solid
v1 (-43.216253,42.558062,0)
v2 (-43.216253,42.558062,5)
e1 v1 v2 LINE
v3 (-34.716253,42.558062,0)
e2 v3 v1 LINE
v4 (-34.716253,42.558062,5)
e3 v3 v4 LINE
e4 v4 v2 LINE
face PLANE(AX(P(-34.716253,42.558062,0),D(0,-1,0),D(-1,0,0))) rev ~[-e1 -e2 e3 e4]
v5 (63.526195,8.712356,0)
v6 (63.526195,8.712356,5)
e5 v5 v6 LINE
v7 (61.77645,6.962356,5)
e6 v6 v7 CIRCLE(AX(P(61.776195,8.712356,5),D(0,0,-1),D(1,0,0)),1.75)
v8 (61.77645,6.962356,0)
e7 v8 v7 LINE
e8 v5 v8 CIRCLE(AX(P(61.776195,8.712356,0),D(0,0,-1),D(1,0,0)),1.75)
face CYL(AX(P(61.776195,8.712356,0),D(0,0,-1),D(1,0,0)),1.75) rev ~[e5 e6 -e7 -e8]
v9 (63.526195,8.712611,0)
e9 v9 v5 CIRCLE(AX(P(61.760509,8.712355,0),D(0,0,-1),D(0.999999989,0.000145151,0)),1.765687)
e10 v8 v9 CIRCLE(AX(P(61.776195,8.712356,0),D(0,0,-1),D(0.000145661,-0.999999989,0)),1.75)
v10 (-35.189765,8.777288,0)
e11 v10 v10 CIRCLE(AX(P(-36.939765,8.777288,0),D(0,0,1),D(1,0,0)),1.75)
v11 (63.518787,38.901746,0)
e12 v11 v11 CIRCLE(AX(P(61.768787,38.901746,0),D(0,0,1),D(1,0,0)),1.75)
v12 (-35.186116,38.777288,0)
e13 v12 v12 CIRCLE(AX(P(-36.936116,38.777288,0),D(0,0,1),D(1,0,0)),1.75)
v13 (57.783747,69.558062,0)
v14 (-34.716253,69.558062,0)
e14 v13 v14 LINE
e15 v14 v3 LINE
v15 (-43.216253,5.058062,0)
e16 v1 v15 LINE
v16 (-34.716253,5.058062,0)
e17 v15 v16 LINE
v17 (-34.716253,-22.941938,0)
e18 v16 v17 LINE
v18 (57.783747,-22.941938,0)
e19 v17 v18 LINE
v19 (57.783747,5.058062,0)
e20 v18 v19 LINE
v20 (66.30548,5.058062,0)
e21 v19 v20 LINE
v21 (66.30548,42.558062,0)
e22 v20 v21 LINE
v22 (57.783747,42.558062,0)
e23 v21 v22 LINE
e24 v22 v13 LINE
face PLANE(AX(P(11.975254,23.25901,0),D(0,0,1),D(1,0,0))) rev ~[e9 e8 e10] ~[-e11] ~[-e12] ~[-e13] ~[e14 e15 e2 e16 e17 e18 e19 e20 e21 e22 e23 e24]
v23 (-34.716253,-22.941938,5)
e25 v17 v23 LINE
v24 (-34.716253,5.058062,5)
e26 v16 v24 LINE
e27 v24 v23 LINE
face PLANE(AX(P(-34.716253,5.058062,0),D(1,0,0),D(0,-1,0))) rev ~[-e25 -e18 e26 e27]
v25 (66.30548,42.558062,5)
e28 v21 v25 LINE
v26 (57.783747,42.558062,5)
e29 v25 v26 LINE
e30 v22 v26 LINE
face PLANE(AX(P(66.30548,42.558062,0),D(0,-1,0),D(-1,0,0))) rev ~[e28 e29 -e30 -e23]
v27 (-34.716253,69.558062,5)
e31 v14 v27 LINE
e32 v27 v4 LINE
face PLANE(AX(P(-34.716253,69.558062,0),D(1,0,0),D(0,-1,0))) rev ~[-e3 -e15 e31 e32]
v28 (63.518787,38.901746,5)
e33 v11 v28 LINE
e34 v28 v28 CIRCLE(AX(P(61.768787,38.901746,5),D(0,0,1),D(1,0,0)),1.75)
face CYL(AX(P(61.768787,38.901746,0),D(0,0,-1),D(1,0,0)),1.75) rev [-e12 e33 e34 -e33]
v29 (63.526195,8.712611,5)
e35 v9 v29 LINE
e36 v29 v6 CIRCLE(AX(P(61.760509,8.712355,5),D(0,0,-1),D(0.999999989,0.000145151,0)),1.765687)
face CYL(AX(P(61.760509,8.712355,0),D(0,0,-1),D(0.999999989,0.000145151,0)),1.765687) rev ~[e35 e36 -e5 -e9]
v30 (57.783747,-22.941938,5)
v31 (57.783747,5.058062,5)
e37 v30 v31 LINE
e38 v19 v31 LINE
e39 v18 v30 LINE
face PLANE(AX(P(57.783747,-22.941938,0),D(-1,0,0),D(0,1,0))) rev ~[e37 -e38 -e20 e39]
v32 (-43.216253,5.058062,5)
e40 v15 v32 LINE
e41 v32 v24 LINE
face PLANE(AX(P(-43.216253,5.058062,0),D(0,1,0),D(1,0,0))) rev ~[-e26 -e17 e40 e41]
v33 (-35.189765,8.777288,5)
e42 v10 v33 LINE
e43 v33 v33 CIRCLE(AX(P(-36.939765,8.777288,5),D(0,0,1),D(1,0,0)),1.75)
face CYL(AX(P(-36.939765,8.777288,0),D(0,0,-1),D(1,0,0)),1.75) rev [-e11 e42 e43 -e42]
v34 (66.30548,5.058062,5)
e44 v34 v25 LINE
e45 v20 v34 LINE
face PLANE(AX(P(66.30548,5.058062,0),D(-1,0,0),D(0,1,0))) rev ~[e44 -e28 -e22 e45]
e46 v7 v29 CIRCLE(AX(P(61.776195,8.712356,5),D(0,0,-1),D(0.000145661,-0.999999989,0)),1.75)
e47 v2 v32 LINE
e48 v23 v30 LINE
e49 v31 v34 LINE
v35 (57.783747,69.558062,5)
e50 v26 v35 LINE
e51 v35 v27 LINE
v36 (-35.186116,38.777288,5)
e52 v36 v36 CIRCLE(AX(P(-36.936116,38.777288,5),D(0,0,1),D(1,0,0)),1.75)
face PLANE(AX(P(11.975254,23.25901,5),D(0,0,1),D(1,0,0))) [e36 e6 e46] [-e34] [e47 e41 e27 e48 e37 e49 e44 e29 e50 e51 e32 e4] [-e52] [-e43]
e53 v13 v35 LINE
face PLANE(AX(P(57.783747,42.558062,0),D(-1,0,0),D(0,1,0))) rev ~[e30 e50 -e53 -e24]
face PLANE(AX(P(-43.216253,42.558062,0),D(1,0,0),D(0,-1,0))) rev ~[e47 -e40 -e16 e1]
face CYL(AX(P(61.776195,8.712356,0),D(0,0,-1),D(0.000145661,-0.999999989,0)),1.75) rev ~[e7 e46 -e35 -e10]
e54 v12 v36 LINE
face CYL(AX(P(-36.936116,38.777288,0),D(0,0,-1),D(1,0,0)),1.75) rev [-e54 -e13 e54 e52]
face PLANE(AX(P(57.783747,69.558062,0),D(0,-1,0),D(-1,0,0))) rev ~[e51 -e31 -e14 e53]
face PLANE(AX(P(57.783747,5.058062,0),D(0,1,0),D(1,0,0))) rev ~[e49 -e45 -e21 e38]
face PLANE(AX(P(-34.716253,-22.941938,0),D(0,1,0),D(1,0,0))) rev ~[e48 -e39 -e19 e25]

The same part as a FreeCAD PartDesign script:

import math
import FreeCAD as App
import Part
import Sketcher

V = App.Vector
Q = App.Units.Quantity


def add_polygon(sketch, points):
    """Adds a closed chain of lines whose ends are joined by coincident constraints."""
    first, n = sketch.GeometryCount, len(points)
    for a, b in zip(points, points[1:] + points[:1]):
        sketch.addGeometry(Part.LineSegment(App.Vector(*a, 0), App.Vector(*b, 0)), False)
    for i in range(n):
        sketch.addConstraint(Sketcher.Constraint("Coincident", first + i, 2, first + (i + 1) % n, 1))

doc = App.newDocument("Part")
body = doc.addObject("PartDesign::Body", "Body")

# Sketch on XY plane
sketch1 = body.newObject("Sketcher::SketchObject", "Sketch")
sketch1.AttachmentSupport = (doc.getObject("XY_Plane"), [""])
sketch1.MapMode = "FlatFace"
add_polygon(sketch1, [(57.783747, 69.558062), (-34.716253, 69.558062), (-34.716253, 42.558062), (-43.216253, 42.558062), (-43.216253, 5.058062), (-34.716253, 5.058062), (-34.716253, -22.941938), (57.783747, -22.941938), (57.783747, 5.058062), (66.30548, 5.058062), (66.30548, 42.558062), (57.783747, 42.558062)])  # lines 0-11
sketch1.addGeometry(Part.ArcOfCircle(Part.Circle(V(61.776195, 8.712356, 0), V(0, 0, 1), 1.75), math.radians(0.008346), math.radians(270.008346)), False)  # 12
sketch1.addGeometry(Part.ArcOfCircle(Part.Circle(V(61.760509, 8.712355, 0), V(0, 0, 1), 1.765687), math.radians(0.000045), math.radians(0.008317)), False)  # 13
sketch1.addGeometry(Part.ArcOfCircle(Part.Circle(V(61.776195, 8.712356, 0), V(0, 0, 1), 1.75), math.radians(-89.991654), math.radians(0)), False)  # 14
sketch1.addGeometry(Part.Circle(V(-36.939765, 8.777288, 0), V(0, 0, 1), 1.75), False)  # 15
sketch1.addGeometry(Part.Circle(V(-36.936116, 38.777288, 0), V(0, 0, 1), 1.75), False)  # 16
sketch1.addGeometry(Part.Circle(V(61.768787, 38.901746, 0), V(0, 0, 1), 1.75), False)  # 17
sketch1.addConstraint([
    Sketcher.Constraint("Coincident", 12, 1, 13, 2),
    Sketcher.Constraint("Coincident", 13, 1, 14, 2),
    Sketcher.Constraint("Coincident", 14, 1, 12, 2),
    Sketcher.Constraint("Horizontal", 0),
    Sketcher.Constraint("Vertical", 1),
    Sketcher.Constraint("Horizontal", 2),
    Sketcher.Constraint("Vertical", 3),
    Sketcher.Constraint("Horizontal", 4),
    Sketcher.Constraint("Vertical", 5),
    Sketcher.Constraint("Horizontal", 6),
    Sketcher.Constraint("Vertical", 7),
    Sketcher.Constraint("Horizontal", 8),
    Sketcher.Constraint("Vertical", 9),
    Sketcher.Constraint("Horizontal", 10),
    Sketcher.Constraint("Vertical", 11),
    Sketcher.Constraint("Diameter", 15, Q("3.5 mm")),
    Sketcher.Constraint("Diameter", 16, Q("3.5 mm")),
    Sketcher.Constraint("Diameter", 17, Q("3.5 mm")),
    Sketcher.Constraint("DistanceY", 1, 2, 1, 1, Q("27 mm")),
    Sketcher.Constraint("DistanceY", 5, 2, 5, 1, Q("28 mm")),
    Sketcher.Constraint("DistanceY", 7, 1, 7, 2, Q("28 mm")),
    Sketcher.Constraint("DistanceY", 11, 1, 11, 2, Q("27 mm")),
    Sketcher.Constraint("Radius", 12, Q("1.75 mm")),
    Sketcher.Constraint("Radius", 14, Q("1.75 mm")),
    Sketcher.Constraint("DistanceX", 0, 2, 0, 1, Q("92.5 mm")),
    Sketcher.Constraint("DistanceX", 2, 2, 2, 1, Q("8.5 mm")),
    Sketcher.Constraint("DistanceX", 4, 1, 4, 2, Q("8.5 mm")),
    Sketcher.Constraint("DistanceX", 6, 1, 6, 2, Q("92.5 mm")),
    Sketcher.Constraint("DistanceY", 3, 2, 3, 1, Q("37.5 mm")),
    Sketcher.Constraint("DistanceY", 15, 3, 16, 3, Q("30 mm")),
    Sketcher.Constraint("DistanceY", 14, 1, 13, 3, Q("1.749999 mm")),
    Sketcher.Constraint("DistanceY", 14, 1, 13, 1, Q("1.75 mm")),
    Sketcher.Constraint("Radius", 13, Q("1.765687 mm")),
    Sketcher.Constraint("DistanceX", 8, 1, 8, 2, Q("8.521733 mm")),
    Sketcher.Constraint("DistanceX", -1, 1, 13, 3, Q("61.760509 mm")),
    Sketcher.Constraint("DistanceY", -1, 1, 15, 3, Q("8.777288 mm")),
    Sketcher.Constraint("DistanceX", -1, 1, 8, 2, Q("66.30548 mm")),
    Sketcher.Constraint("DistanceY", -1, 1, 12, 1, Q("8.712611 mm")),
    Sketcher.Constraint("DistanceX", -1, 1, 14, 1, Q("61.77645 mm")),
    Sketcher.Constraint("DistanceX", 15, 3, 12, 3, Q("98.71596 mm")),
    Sketcher.Constraint("DistanceY", 12, 3, 15, 3, Q("0.064932 mm")),
    Sketcher.Constraint("DistanceX", 15, 3, 16, 3, Q("0.003649 mm")),
    Sketcher.Constraint("DistanceX", 17, 3, 12, 3, Q("0.007408 mm")),
    Sketcher.Constraint("DistanceY", 12, 3, 17, 3, Q("30.18939 mm")),
    Sketcher.Constraint("DistanceY", 8, 2, 12, 1, Q("3.654549 mm")),
])
pad1 = body.newObject("PartDesign::Pad", "Pad")
pad1.Profile = sketch1
pad1.Length = 5

doc.recompute()
